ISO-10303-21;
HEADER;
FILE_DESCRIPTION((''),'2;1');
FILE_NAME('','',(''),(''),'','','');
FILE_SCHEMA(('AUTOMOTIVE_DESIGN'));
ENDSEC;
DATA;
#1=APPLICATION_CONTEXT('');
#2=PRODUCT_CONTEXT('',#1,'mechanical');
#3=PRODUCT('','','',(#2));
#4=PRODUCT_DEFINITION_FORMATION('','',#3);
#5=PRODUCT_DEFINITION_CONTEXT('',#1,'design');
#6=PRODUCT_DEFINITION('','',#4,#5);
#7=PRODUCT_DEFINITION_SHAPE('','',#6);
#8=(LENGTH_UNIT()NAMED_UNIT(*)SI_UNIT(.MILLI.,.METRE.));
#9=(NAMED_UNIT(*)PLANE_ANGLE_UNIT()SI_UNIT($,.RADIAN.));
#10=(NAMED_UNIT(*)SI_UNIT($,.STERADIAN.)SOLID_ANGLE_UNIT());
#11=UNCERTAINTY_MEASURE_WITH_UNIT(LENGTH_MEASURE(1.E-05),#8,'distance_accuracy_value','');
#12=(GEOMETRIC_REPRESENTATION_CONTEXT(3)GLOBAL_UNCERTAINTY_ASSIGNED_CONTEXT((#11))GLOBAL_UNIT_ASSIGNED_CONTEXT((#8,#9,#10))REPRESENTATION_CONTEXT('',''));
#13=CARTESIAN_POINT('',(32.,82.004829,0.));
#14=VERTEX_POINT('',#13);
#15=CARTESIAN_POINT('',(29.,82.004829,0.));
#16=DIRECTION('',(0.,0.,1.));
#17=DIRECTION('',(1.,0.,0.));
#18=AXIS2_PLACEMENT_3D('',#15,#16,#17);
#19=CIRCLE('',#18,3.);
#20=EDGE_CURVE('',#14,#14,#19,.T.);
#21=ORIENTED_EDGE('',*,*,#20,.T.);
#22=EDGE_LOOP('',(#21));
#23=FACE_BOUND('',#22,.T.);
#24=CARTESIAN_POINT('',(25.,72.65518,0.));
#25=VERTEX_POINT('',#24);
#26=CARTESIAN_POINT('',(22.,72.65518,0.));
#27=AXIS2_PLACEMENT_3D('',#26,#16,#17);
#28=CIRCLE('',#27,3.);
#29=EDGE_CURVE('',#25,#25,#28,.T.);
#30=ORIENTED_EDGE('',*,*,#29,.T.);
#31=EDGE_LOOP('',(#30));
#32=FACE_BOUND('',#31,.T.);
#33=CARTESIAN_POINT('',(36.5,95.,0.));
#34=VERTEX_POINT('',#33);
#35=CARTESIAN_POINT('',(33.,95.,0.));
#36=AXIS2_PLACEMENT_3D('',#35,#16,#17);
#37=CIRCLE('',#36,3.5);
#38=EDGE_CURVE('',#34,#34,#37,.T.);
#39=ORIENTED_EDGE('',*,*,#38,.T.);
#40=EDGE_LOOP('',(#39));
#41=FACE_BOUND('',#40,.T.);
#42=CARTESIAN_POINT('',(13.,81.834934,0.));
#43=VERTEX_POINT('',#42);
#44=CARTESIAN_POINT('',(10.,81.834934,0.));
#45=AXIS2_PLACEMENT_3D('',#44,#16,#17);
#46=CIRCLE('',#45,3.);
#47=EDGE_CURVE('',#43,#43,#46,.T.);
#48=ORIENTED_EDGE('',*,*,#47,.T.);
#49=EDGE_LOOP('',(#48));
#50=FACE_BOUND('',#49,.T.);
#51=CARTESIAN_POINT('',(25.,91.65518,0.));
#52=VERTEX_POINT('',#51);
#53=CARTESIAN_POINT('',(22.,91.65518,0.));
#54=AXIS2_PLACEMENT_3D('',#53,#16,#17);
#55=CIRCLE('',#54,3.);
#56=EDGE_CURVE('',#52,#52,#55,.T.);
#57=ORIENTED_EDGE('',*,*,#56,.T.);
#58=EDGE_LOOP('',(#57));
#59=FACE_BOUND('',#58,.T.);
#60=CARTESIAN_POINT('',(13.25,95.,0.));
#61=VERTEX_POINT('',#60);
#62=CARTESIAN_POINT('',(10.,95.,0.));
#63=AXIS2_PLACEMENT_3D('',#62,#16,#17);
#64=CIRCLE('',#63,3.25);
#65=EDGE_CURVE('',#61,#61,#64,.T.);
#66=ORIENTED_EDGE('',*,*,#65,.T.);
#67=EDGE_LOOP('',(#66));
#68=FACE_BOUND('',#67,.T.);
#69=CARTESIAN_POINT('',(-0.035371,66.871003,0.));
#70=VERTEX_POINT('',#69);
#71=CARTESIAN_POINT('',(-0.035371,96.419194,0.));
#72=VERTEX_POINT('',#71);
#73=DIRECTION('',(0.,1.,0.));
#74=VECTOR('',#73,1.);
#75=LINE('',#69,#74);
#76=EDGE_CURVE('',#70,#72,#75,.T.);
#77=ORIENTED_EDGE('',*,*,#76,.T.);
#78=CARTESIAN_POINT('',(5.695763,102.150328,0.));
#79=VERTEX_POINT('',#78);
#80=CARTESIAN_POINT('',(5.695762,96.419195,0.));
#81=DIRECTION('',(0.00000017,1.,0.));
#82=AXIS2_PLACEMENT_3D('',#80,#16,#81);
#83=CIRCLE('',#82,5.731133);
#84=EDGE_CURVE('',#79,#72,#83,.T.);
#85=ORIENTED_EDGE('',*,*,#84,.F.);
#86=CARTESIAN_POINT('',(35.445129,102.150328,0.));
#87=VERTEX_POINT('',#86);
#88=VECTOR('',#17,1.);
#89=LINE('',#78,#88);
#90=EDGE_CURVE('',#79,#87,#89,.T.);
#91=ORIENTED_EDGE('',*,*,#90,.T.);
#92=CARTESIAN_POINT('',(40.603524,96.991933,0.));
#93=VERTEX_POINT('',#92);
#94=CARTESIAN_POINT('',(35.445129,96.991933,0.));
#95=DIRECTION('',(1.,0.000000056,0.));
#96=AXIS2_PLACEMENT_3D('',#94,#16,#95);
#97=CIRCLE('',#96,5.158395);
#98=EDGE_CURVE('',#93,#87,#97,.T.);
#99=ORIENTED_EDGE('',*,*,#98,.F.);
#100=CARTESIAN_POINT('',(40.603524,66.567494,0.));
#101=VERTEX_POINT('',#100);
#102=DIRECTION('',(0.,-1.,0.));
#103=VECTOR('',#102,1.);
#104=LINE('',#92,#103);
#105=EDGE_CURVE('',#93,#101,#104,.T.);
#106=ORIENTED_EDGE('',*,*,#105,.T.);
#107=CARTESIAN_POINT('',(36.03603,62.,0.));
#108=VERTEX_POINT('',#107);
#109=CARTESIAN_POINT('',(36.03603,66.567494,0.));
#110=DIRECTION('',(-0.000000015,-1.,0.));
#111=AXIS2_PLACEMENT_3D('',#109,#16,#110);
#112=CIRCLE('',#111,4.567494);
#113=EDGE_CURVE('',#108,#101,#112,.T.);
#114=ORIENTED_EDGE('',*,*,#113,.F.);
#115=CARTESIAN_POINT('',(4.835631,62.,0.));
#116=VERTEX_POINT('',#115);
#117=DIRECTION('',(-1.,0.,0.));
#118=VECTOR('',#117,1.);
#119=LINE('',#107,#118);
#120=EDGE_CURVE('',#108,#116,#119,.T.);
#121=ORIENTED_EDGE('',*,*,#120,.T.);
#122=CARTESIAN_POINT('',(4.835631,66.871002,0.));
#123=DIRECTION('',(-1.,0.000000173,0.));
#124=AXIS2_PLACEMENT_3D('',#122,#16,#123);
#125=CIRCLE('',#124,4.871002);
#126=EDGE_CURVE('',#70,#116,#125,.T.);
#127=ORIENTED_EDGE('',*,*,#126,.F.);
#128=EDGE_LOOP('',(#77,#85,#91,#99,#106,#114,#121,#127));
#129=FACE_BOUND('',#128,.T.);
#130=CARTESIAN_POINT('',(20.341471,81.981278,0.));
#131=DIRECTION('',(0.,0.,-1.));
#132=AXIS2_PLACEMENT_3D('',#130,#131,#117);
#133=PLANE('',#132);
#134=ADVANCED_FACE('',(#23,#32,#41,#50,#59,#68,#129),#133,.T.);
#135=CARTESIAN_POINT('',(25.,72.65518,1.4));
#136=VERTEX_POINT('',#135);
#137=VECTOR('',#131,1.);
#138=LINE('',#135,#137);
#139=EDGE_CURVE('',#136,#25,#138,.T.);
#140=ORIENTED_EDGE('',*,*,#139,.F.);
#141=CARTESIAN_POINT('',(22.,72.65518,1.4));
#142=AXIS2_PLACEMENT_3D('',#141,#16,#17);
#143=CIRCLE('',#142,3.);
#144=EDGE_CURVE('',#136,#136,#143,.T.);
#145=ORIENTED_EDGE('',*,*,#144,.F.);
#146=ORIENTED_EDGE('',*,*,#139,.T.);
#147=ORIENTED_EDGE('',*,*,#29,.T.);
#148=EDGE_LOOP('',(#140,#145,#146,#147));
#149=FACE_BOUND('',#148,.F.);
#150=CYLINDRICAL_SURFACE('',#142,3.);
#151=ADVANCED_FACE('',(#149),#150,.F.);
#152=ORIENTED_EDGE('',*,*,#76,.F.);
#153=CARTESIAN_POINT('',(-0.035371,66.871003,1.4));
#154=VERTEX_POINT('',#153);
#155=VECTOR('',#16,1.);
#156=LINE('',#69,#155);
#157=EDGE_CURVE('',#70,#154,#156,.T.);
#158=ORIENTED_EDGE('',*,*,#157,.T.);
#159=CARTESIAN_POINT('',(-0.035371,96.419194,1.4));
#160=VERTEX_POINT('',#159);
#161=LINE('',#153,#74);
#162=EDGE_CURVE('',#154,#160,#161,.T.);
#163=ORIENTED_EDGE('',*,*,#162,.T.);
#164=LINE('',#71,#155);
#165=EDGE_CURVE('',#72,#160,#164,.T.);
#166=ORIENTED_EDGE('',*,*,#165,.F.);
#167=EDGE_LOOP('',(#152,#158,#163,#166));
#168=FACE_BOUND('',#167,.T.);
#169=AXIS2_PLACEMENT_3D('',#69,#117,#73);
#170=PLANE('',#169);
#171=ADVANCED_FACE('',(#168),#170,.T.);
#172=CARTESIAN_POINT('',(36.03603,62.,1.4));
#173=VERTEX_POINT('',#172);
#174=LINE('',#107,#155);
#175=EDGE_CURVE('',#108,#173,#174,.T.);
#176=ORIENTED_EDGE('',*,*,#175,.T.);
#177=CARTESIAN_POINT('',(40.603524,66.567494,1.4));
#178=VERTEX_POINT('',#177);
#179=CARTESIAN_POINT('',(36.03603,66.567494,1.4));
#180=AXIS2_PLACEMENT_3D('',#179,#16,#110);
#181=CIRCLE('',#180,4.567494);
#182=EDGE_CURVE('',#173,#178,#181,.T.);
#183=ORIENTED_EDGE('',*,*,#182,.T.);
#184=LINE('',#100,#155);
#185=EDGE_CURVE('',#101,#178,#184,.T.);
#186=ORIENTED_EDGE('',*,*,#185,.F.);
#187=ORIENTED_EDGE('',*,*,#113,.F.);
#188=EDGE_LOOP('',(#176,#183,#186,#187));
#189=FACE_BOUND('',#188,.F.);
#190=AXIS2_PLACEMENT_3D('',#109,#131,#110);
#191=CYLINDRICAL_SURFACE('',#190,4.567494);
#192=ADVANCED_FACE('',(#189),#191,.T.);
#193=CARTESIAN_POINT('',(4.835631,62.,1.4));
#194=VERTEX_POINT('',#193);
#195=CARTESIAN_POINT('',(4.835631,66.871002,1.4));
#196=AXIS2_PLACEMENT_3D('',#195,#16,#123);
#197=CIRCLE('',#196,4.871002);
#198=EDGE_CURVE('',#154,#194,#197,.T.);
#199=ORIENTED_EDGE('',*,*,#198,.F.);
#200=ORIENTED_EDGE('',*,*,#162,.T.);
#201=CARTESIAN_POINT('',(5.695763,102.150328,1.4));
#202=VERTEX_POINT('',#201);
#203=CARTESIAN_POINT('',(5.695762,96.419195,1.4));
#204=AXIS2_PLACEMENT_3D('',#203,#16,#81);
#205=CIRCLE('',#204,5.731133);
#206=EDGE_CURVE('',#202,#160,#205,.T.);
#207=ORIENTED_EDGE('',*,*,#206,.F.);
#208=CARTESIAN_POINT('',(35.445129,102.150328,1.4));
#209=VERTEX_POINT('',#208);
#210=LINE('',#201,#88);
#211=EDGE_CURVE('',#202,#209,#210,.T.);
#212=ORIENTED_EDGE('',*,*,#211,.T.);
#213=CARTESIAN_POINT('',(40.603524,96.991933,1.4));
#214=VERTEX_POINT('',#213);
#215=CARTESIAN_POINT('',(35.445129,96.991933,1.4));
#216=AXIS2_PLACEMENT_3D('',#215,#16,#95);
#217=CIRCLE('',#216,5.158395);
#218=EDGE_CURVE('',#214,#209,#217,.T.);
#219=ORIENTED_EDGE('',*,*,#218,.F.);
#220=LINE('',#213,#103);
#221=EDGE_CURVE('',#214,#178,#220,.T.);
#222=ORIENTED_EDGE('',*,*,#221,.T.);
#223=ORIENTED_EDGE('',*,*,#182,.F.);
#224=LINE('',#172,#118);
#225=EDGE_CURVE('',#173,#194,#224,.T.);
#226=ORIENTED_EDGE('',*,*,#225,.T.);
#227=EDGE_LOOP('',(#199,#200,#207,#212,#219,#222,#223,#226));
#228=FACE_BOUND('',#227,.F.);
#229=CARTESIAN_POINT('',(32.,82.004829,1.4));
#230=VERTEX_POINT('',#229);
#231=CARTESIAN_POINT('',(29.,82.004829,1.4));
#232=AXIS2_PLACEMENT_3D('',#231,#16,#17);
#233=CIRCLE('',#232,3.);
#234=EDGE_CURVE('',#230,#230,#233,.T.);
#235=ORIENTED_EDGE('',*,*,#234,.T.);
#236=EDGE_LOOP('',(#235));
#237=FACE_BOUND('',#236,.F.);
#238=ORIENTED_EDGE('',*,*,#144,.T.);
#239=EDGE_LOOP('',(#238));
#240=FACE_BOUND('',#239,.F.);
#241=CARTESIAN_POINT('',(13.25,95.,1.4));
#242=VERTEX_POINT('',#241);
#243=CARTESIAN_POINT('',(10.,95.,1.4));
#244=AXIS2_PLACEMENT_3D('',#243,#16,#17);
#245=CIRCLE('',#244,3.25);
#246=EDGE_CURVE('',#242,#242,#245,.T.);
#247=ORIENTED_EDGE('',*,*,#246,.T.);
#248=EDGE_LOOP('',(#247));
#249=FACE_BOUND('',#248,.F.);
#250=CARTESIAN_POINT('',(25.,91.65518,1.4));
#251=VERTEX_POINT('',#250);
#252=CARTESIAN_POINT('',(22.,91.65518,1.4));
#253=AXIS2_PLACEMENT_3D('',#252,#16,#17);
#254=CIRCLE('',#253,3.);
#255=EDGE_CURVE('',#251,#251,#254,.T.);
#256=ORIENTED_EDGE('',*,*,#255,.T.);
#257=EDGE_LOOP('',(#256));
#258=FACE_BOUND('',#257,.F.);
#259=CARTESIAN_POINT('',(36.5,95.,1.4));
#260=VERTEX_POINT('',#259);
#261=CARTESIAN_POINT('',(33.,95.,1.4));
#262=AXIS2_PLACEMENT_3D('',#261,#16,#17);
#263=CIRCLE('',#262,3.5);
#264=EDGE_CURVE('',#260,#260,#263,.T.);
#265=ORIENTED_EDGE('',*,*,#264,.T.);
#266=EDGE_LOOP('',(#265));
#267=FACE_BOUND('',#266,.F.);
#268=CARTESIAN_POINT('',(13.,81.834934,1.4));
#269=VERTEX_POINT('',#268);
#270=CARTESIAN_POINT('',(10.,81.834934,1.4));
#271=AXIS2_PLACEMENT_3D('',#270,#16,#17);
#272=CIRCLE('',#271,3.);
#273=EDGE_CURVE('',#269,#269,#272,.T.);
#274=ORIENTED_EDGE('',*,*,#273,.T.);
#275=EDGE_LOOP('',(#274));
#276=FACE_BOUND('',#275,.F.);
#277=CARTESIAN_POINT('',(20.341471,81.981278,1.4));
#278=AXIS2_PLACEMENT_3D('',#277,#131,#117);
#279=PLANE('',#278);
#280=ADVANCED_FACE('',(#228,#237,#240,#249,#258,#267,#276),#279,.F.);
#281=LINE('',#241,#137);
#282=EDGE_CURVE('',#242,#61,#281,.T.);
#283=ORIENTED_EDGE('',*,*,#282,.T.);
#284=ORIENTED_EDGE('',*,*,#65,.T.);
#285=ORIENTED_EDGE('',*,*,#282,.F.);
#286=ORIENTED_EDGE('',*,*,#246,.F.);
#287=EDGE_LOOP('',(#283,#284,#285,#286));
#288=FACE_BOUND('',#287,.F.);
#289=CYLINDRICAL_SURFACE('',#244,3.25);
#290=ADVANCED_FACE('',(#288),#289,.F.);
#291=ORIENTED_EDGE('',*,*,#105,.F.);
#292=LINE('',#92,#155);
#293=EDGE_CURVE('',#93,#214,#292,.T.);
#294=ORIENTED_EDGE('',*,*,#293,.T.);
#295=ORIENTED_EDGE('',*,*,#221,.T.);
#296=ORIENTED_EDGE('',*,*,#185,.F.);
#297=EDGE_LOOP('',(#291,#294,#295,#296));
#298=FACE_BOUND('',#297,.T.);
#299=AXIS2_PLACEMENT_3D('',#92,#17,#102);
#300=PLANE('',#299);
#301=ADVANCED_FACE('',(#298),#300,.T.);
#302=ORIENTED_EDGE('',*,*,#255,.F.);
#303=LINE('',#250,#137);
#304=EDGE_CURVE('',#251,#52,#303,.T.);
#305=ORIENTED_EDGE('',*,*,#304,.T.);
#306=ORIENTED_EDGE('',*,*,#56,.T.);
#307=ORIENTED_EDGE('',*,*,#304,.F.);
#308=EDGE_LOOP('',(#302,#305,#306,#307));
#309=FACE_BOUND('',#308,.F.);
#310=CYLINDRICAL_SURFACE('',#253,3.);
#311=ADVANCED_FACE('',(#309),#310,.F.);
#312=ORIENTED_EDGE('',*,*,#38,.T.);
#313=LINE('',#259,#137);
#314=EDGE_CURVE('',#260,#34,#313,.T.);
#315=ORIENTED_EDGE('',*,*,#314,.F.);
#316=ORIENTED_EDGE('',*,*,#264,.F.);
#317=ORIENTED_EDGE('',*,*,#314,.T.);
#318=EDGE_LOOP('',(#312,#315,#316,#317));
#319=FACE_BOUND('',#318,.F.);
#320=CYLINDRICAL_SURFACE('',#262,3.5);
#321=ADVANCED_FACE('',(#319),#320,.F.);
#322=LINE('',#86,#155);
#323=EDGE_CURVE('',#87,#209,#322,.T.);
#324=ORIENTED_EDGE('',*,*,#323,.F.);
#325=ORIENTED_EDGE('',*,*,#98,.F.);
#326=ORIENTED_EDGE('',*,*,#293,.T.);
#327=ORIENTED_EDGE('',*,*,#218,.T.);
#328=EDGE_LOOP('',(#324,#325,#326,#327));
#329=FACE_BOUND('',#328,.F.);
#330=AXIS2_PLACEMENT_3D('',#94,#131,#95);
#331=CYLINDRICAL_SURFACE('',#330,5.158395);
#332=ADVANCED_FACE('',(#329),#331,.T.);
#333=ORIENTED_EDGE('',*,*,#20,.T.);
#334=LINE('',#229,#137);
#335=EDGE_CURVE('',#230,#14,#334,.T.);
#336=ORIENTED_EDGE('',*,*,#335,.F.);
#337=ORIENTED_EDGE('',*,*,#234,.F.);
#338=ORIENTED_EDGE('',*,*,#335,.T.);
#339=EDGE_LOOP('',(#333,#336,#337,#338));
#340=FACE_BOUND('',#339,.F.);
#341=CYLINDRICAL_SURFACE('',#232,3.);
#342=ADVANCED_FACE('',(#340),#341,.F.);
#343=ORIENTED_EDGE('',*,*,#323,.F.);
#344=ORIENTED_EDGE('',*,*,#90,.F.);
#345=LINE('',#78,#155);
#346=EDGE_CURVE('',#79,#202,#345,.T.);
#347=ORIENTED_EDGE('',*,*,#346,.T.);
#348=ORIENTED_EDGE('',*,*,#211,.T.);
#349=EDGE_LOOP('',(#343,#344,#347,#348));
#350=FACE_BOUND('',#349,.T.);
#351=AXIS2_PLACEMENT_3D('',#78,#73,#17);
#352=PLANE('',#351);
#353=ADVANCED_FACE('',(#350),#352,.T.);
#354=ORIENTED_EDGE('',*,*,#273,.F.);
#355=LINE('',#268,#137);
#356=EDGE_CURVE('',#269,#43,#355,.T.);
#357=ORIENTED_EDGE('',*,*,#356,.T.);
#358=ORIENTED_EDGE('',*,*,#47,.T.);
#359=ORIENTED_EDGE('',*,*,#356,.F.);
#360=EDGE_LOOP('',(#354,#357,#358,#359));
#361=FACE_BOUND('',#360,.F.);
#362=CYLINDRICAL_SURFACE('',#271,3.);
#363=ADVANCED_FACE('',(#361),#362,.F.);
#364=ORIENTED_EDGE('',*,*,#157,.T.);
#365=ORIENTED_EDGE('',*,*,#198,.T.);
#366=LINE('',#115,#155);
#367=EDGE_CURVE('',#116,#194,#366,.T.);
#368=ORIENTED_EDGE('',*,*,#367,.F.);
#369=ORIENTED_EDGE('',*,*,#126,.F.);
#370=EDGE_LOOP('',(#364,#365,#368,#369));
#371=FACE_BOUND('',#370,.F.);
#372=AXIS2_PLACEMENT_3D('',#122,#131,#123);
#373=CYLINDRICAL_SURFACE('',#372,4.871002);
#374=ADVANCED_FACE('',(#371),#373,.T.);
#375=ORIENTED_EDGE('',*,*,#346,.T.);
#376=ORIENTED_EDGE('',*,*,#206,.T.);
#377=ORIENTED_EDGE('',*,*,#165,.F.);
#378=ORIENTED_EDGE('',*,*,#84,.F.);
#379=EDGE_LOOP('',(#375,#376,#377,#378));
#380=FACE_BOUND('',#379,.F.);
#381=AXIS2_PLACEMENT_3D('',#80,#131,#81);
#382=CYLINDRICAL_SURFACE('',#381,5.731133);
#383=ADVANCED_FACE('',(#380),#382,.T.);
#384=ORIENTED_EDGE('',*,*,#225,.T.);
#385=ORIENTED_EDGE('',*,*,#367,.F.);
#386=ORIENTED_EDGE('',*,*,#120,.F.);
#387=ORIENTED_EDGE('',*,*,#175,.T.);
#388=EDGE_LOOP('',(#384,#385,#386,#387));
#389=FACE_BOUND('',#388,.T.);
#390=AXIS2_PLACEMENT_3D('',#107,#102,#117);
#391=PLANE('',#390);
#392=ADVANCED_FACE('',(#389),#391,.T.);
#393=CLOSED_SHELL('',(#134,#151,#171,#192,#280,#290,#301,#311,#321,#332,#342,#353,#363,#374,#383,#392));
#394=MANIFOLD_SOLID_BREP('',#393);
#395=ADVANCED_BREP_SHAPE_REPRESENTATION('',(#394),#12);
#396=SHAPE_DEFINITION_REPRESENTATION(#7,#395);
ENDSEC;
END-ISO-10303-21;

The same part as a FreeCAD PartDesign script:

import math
import FreeCAD as App
import Part
import Sketcher
from FreeCAD import Vector
Q = App.Units.Quantity

doc = App.newDocument("Part")
body = doc.addObject("PartDesign::Body", "Body")

# Sketch on XY plane
sketch1 = body.newObject("Sketcher::SketchObject", "Sketch")
sketch1.AttachmentSupport = (doc.getObject("XY_Plane"), [""])
sketch1.MapMode = "FlatFace"
sketch1.addGeometry(Part.LineSegment(Vector(35.4, -19.8, 0), Vector(5.7, -19.8, 0)), False)
sketch1.addGeometry(Part.ArcOfCircle(Part.Circle(Vector(5.7, -25.6, 0), Vector(0, 0, 1), 5.7), math.radians(90), math.radians(180)), False)
sketch1.addGeometry(Part.LineSegment(Vector(0, -25.6, 0), Vector(0, -55.1, 0)), False)
sketch1.addGeometry(Part.ArcOfCircle(Part.Circle(Vector(4.8, -55.1, 0), Vector(0, 0, 1), 4.9), math.radians(180), math.radians(270)), False)
sketch1.addGeometry(Part.LineSegment(Vector(4.8, -60, 0), Vector(36, -60, 0)), False)
sketch1.addGeometry(Part.ArcOfCircle(Part.Circle(Vector(36, -55.4, 0), Vector(0, 0, 1), 4.6), math.radians(-90), math.radians(0)), False)
sketch1.addGeometry(Part.LineSegment(Vector(40.6, -55.4, 0), Vector(40.6, -25, 0)), False)
sketch1.addGeometry(Part.ArcOfCircle(Part.Circle(Vector(35.4, -25, 0), Vector(0, 0, 1), 5.2), math.radians(0), math.radians(90)), False)
sketch1.addConstraint(Sketcher.Constraint("Tangent", 0, 2, 1, 1))
sketch1.addConstraint(Sketcher.Constraint("Tangent", 1, 2, 2, 1))
sketch1.addConstraint(Sketcher.Constraint("Tangent", 2, 2, 3, 1))
sketch1.addConstraint(Sketcher.Constraint("Tangent", 3, 2, 4, 1))
sketch1.addConstraint(Sketcher.Constraint("Tangent", 4, 2, 5, 1))
sketch1.addConstraint(Sketcher.Constraint("Tangent", 5, 2, 6, 1))
sketch1.addConstraint(Sketcher.Constraint("Tangent", 6, 2, 7, 1))
sketch1.addConstraint(Sketcher.Constraint("Tangent", 7, 2, 0, 1))
sketch1.addConstraint(Sketcher.Constraint("Horizontal", 0))
sketch1.addConstraint(Sketcher.Constraint("Vertical", 2))
sketch1.addConstraint(Sketcher.Constraint("Horizontal", 4))
sketch1.addConstraint(Sketcher.Constraint("Vertical", 6))
sketch1.addConstraint(Sketcher.Constraint("DistanceY", 3, 2, -1, 1, Q("60 mm")))
sketch1.addConstraint(Sketcher.Constraint("DistanceX", 4, 1, 4, 2, Q("31.200399 mm")))
sketch1.addConstraint(Sketcher.Constraint("Radius", 1, Q("5.731133 mm")))
sketch1.addConstraint(Sketcher.Constraint("Radius", 3, Q("4.871002 mm")))
sketch1.addConstraint(Sketcher.Constraint("Radius", 5, Q("4.567494 mm")))
sketch1.addConstraint(Sketcher.Constraint("Radius", 7, Q("5.158395 mm")))
sketch1.addConstraint(Sketcher.Constraint("DistanceY", 2, 2, 2, 1, Q("29.548191 mm")))
sketch1.addConstraint(Sketcher.Constraint("DistanceX", -1, 1, 3, 3, Q("4.835631 mm")))
pad1 = body.newObject("PartDesign::Pad", "Pad")
pad1.Profile = sketch1
pad1.Length = 1.4

# Sketch on XY plane
sketch2 = body.newObject("Sketcher::SketchObject", "Sketch001")
sketch2.AttachmentSupport = (doc.getObject("XY_Plane"), [""])
sketch2.MapMode = "FlatFace"
sketch2.AttachmentOffset = App.Placement(Vector(0, 0, 1.4), App.Rotation())
sketch2.addGeometry(Part.Circle(Vector(22, -49.3, 0), Vector(0, 0, 1), 3), False)
sketch2.addGeometry(Part.Circle(Vector(22, -30.3, 0), Vector(0, 0, 1), 3), False)
sketch2.addConstraint(Sketcher.Constraint("Equal", 0, 1))
sketch2.addConstraint(Sketcher.Constraint("Vertical", 0, 3, 1, 3))
sketch2.addConstraint(Sketcher.Constraint("Diameter", 0, Q("6 mm")))
sketch2.addConstraint(Sketcher.Constraint("DistanceX", -1, 1, 0, 3, Q("22 mm")))
sketch2.addConstraint(Sketcher.Constraint("DistanceY", 0, 3, 1, 3, Q("19 mm")))
sketch2.addConstraint(Sketcher.Constraint("DistanceY", 0, 3, -1, 1, Q("49.34482 mm")))
pocket1 = body.newObject("PartDesign::Pocket", "Pocket")
pocket1.Profile = sketch2
pocket1.Type = "ThroughAll"

# Sketch on XY plane
sketch3 = body.newObject("Sketcher::SketchObject", "Sketch002")
sketch3.AttachmentSupport = (doc.getObject("XY_Plane"), [""])
sketch3.MapMode = "FlatFace"
sketch3.AttachmentOffset = App.Placement(Vector(0, 0, 1.4), App.Rotation())
sketch3.addGeometry(Part.Circle(Vector(10, -40.2, 0), Vector(0, 0, 1), 3), False)
sketch3.addGeometry(Part.Circle(Vector(29, -40, 0), Vector(0, 0, 1), 3), False)
sketch3.addConstraint(Sketcher.Constraint("Equal", 0, 1))
sketch3.addConstraint(Sketcher.Constraint("Diameter", 0, Q("6 mm")))
sketch3.addConstraint(Sketcher.Constraint("DistanceX", -1, 1, 0, 3, Q("10 mm")))
sketch3.addConstraint(Sketcher.Constraint("DistanceX", -1, 1, 1, 3, Q("29 mm")))
sketch3.addConstraint(Sketcher.Constraint("DistanceY", 1, 3, -1, 1, Q("39.995171 mm")))
sketch3.addConstraint(Sketcher.Constraint("DistanceY", 0, 3, -1, 1, Q("40.165066 mm")))
pocket2 = body.newObject("PartDesign::Pocket", "Pocket001")
pocket2.Profile = sketch3
pocket2.Type = "ThroughAll"

# Sketch on XY plane
sketch4 = body.newObject("Sketcher::SketchObject", "Sketch003")
sketch4.AttachmentSupport = (doc.getObject("XY_Plane"), [""])
sketch4.MapMode = "FlatFace"
sketch4.AttachmentOffset = App.Placement(Vector(0, 0, 1.4), App.Rotation())
sketch4.addGeometry(Part.Circle(Vector(33, -27, 0), Vector(0, 0, 1), 3.5), False)
sketch4.addConstraint(Sketcher.Constraint("Diameter", 0, Q("7 mm")))
sketch4.addConstraint(Sketcher.Constraint("DistanceX", -1, 1, 0, 3, Q("33 mm")))
sketch4.addConstraint(Sketcher.Constraint("DistanceY", 0, 3, -1, 1, Q("27 mm")))
pocket3 = body.newObject("PartDesign::Pocket", "Pocket002")
pocket3.Profile = sketch4
pocket3.Type = "ThroughAll"

# Sketch on XY plane
sketch5 = body.newObject("Sketcher::SketchObject", "Sketch004")
sketch5.AttachmentSupport = (doc.getObject("XY_Plane"), [""])
sketch5.MapMode = "FlatFace"
sketch5.AttachmentOffset = App.Placement(Vector(0, 0, 1.4), App.Rotation())
sketch5.addGeometry(Part.Circle(Vector(10, -27, 0), Vector(0, 0, 1), 3.2), False)
sketch5.addConstraint(Sketcher.Constraint("Diameter", 0, Q("6.5 mm")))
sketch5.addConstraint(Sketcher.Constraint("DistanceX", -1, 1, 0, 3, Q("10 mm")))
sketch5.addConstraint(Sketcher.Constraint("DistanceY", 0, 3, -1, 1, Q("27 mm")))
pocket4 = body.newObject("PartDesign::Pocket", "Pocket003")
pocket4.Profile = sketch5
pocket4.Type = "ThroughAll"
body2 = doc.addObject("PartDesign::Body", "Body001")
doc.recompute()

body.Placement = App.Placement(Vector(0, 122, 0), App.Rotation(Vector(0, 0, 1), 0))
boolean = body2.newObject("PartDesign::Boolean", "Boolean")
boolean.Type = "Fuse"
boolean.addObjects([body])

doc.recompute()
